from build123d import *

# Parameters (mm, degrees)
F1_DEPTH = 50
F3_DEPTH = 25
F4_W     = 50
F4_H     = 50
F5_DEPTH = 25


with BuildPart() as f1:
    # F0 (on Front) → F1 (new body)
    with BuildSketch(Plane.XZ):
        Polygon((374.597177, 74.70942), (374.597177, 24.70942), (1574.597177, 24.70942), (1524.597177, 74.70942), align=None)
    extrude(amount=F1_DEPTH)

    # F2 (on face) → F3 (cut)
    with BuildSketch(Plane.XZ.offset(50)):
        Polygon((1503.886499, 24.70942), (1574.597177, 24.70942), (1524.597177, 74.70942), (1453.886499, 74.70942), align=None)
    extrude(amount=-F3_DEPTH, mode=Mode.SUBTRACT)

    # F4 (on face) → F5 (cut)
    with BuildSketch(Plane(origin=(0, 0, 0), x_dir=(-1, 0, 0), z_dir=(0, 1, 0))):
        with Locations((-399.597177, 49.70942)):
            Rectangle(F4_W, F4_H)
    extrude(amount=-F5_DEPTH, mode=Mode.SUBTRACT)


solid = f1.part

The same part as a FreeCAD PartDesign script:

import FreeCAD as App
import Part
import Sketcher
from FreeCAD import Vector
Q = App.Units.Quantity


def add_polygon(sketch, points):
    """Adds a closed chain of lines whose ends are joined by coincident constraints."""
    first, n = sketch.GeometryCount, len(points)
    for a, b in zip(points, points[1:] + points[:1]):
        sketch.addGeometry(Part.LineSegment(App.Vector(*a, 0), App.Vector(*b, 0)), False)
    for i in range(n):
        sketch.addConstraint(Sketcher.Constraint("Coincident", first + i, 2, first + (i + 1) % n, 1))

doc = App.newDocument("Part")
body = doc.addObject("PartDesign::Body", "Body")

# Sketch on XZ plane
sketch1 = body.newObject("Sketcher::SketchObject", "Sketch")
sketch1.AttachmentSupport = (doc.getObject("XZ_Plane"), [""])
sketch1.MapMode = "FlatFace"
add_polygon(sketch1, [(374.597177, 74.70942), (374.597177, 24.70942), (1574.597177, 24.70942), (1524.597177, 74.70942)])  # lines 0-3
sketch1.addConstraint([
    Sketcher.Constraint("Vertical", 0),
    Sketcher.Constraint("Horizontal", 1),
    Sketcher.Constraint("Horizontal", 3),
    Sketcher.Constraint("DistanceX", 1, 1, 1, 2, Q("1200 mm")),
    Sketcher.Constraint("DistanceX", 3, 2, 3, 1, Q("1150 mm")),
    Sketcher.Constraint("DistanceY", 0, 2, 0, 1, Q("50 mm")),
    Sketcher.Constraint("DistanceY", -1, 1, 0, 2, Q("24.70942 mm")),
    Sketcher.Constraint("DistanceX", -1, 1, 0, 2, Q("374.597177 mm")),
])
pad1 = body.newObject("PartDesign::Pad", "Pad")
pad1.Profile = sketch1
pad1.Length = 50

# Sketch on XZ plane
sketch2 = body.newObject("Sketcher::SketchObject", "Sketch001")
sketch2.AttachmentSupport = (doc.getObject("XZ_Plane"), [""])
sketch2.MapMode = "FlatFace"
sketch2.AttachmentOffset = App.Placement(Vector(0, 0, 50), App.Rotation())
add_polygon(sketch2, [(1503.886499, 24.70942), (1574.597177, 24.70942), (1524.597177, 74.70942), (1453.886499, 74.70942)])  # lines 0-3
sketch2.addConstraint([
    Sketcher.Constraint("Horizontal", 0),
    Sketcher.Constraint("Horizontal", 2),
    Sketcher.Constraint("Parallel", 1, 3),
    Sketcher.Constraint("Angle", 1, Q("135 deg")),
    Sketcher.Constraint("DistanceX", 1, 2, 0, 2, Q("50 mm")),
    Sketcher.Constraint("DistanceX", 0, 1, 0, 2, Q("70.710678 mm")),
    Sketcher.Constraint("DistanceX", -1, 1, 2, 2, Q("1453.886499 mm")),
    Sketcher.Constraint("DistanceY", -1, 1, 0, 2, Q("24.70942 mm")),
])
pocket1 = body.newObject("PartDesign::Pocket", "Pocket")
pocket1.Profile = sketch2
pocket1.Length = 25

# Sketch on XZ plane
sketch3 = body.newObject("Sketcher::SketchObject", "Sketch002")
sketch3.AttachmentSupport = (doc.getObject("XZ_Plane"), [""])
sketch3.MapMode = "FlatFace"
add_polygon(sketch3, [(424.597177, 74.70942), (424.597177, 24.70942), (374.597177, 24.70942), (374.597177, 74.70942)])  # lines 0-3
sketch3.addConstraint([
    Sketcher.Constraint("Vertical", 0),
    Sketcher.Constraint("Horizontal", 1),
    Sketcher.Constraint("Vertical", 2),
    Sketcher.Constraint("Horizontal", 3),
    Sketcher.Constraint("Equal", 3, 0),
    Sketcher.Constraint("DistanceX", 1, 2, 1, 1, Q("50 mm")),
    Sketcher.Constraint("DistanceY", -1, 1, 0, 2, Q("24.70942 mm")),
    Sketcher.Constraint("DistanceX", -1, 1, 0, 2, Q("424.597177 mm")),
])
pocket2 = body.newObject("PartDesign::Pocket", "Pocket001")
pocket2.Profile = sketch3
pocket2.Length = 25
pocket2.Reversed = True

doc.recompute()
